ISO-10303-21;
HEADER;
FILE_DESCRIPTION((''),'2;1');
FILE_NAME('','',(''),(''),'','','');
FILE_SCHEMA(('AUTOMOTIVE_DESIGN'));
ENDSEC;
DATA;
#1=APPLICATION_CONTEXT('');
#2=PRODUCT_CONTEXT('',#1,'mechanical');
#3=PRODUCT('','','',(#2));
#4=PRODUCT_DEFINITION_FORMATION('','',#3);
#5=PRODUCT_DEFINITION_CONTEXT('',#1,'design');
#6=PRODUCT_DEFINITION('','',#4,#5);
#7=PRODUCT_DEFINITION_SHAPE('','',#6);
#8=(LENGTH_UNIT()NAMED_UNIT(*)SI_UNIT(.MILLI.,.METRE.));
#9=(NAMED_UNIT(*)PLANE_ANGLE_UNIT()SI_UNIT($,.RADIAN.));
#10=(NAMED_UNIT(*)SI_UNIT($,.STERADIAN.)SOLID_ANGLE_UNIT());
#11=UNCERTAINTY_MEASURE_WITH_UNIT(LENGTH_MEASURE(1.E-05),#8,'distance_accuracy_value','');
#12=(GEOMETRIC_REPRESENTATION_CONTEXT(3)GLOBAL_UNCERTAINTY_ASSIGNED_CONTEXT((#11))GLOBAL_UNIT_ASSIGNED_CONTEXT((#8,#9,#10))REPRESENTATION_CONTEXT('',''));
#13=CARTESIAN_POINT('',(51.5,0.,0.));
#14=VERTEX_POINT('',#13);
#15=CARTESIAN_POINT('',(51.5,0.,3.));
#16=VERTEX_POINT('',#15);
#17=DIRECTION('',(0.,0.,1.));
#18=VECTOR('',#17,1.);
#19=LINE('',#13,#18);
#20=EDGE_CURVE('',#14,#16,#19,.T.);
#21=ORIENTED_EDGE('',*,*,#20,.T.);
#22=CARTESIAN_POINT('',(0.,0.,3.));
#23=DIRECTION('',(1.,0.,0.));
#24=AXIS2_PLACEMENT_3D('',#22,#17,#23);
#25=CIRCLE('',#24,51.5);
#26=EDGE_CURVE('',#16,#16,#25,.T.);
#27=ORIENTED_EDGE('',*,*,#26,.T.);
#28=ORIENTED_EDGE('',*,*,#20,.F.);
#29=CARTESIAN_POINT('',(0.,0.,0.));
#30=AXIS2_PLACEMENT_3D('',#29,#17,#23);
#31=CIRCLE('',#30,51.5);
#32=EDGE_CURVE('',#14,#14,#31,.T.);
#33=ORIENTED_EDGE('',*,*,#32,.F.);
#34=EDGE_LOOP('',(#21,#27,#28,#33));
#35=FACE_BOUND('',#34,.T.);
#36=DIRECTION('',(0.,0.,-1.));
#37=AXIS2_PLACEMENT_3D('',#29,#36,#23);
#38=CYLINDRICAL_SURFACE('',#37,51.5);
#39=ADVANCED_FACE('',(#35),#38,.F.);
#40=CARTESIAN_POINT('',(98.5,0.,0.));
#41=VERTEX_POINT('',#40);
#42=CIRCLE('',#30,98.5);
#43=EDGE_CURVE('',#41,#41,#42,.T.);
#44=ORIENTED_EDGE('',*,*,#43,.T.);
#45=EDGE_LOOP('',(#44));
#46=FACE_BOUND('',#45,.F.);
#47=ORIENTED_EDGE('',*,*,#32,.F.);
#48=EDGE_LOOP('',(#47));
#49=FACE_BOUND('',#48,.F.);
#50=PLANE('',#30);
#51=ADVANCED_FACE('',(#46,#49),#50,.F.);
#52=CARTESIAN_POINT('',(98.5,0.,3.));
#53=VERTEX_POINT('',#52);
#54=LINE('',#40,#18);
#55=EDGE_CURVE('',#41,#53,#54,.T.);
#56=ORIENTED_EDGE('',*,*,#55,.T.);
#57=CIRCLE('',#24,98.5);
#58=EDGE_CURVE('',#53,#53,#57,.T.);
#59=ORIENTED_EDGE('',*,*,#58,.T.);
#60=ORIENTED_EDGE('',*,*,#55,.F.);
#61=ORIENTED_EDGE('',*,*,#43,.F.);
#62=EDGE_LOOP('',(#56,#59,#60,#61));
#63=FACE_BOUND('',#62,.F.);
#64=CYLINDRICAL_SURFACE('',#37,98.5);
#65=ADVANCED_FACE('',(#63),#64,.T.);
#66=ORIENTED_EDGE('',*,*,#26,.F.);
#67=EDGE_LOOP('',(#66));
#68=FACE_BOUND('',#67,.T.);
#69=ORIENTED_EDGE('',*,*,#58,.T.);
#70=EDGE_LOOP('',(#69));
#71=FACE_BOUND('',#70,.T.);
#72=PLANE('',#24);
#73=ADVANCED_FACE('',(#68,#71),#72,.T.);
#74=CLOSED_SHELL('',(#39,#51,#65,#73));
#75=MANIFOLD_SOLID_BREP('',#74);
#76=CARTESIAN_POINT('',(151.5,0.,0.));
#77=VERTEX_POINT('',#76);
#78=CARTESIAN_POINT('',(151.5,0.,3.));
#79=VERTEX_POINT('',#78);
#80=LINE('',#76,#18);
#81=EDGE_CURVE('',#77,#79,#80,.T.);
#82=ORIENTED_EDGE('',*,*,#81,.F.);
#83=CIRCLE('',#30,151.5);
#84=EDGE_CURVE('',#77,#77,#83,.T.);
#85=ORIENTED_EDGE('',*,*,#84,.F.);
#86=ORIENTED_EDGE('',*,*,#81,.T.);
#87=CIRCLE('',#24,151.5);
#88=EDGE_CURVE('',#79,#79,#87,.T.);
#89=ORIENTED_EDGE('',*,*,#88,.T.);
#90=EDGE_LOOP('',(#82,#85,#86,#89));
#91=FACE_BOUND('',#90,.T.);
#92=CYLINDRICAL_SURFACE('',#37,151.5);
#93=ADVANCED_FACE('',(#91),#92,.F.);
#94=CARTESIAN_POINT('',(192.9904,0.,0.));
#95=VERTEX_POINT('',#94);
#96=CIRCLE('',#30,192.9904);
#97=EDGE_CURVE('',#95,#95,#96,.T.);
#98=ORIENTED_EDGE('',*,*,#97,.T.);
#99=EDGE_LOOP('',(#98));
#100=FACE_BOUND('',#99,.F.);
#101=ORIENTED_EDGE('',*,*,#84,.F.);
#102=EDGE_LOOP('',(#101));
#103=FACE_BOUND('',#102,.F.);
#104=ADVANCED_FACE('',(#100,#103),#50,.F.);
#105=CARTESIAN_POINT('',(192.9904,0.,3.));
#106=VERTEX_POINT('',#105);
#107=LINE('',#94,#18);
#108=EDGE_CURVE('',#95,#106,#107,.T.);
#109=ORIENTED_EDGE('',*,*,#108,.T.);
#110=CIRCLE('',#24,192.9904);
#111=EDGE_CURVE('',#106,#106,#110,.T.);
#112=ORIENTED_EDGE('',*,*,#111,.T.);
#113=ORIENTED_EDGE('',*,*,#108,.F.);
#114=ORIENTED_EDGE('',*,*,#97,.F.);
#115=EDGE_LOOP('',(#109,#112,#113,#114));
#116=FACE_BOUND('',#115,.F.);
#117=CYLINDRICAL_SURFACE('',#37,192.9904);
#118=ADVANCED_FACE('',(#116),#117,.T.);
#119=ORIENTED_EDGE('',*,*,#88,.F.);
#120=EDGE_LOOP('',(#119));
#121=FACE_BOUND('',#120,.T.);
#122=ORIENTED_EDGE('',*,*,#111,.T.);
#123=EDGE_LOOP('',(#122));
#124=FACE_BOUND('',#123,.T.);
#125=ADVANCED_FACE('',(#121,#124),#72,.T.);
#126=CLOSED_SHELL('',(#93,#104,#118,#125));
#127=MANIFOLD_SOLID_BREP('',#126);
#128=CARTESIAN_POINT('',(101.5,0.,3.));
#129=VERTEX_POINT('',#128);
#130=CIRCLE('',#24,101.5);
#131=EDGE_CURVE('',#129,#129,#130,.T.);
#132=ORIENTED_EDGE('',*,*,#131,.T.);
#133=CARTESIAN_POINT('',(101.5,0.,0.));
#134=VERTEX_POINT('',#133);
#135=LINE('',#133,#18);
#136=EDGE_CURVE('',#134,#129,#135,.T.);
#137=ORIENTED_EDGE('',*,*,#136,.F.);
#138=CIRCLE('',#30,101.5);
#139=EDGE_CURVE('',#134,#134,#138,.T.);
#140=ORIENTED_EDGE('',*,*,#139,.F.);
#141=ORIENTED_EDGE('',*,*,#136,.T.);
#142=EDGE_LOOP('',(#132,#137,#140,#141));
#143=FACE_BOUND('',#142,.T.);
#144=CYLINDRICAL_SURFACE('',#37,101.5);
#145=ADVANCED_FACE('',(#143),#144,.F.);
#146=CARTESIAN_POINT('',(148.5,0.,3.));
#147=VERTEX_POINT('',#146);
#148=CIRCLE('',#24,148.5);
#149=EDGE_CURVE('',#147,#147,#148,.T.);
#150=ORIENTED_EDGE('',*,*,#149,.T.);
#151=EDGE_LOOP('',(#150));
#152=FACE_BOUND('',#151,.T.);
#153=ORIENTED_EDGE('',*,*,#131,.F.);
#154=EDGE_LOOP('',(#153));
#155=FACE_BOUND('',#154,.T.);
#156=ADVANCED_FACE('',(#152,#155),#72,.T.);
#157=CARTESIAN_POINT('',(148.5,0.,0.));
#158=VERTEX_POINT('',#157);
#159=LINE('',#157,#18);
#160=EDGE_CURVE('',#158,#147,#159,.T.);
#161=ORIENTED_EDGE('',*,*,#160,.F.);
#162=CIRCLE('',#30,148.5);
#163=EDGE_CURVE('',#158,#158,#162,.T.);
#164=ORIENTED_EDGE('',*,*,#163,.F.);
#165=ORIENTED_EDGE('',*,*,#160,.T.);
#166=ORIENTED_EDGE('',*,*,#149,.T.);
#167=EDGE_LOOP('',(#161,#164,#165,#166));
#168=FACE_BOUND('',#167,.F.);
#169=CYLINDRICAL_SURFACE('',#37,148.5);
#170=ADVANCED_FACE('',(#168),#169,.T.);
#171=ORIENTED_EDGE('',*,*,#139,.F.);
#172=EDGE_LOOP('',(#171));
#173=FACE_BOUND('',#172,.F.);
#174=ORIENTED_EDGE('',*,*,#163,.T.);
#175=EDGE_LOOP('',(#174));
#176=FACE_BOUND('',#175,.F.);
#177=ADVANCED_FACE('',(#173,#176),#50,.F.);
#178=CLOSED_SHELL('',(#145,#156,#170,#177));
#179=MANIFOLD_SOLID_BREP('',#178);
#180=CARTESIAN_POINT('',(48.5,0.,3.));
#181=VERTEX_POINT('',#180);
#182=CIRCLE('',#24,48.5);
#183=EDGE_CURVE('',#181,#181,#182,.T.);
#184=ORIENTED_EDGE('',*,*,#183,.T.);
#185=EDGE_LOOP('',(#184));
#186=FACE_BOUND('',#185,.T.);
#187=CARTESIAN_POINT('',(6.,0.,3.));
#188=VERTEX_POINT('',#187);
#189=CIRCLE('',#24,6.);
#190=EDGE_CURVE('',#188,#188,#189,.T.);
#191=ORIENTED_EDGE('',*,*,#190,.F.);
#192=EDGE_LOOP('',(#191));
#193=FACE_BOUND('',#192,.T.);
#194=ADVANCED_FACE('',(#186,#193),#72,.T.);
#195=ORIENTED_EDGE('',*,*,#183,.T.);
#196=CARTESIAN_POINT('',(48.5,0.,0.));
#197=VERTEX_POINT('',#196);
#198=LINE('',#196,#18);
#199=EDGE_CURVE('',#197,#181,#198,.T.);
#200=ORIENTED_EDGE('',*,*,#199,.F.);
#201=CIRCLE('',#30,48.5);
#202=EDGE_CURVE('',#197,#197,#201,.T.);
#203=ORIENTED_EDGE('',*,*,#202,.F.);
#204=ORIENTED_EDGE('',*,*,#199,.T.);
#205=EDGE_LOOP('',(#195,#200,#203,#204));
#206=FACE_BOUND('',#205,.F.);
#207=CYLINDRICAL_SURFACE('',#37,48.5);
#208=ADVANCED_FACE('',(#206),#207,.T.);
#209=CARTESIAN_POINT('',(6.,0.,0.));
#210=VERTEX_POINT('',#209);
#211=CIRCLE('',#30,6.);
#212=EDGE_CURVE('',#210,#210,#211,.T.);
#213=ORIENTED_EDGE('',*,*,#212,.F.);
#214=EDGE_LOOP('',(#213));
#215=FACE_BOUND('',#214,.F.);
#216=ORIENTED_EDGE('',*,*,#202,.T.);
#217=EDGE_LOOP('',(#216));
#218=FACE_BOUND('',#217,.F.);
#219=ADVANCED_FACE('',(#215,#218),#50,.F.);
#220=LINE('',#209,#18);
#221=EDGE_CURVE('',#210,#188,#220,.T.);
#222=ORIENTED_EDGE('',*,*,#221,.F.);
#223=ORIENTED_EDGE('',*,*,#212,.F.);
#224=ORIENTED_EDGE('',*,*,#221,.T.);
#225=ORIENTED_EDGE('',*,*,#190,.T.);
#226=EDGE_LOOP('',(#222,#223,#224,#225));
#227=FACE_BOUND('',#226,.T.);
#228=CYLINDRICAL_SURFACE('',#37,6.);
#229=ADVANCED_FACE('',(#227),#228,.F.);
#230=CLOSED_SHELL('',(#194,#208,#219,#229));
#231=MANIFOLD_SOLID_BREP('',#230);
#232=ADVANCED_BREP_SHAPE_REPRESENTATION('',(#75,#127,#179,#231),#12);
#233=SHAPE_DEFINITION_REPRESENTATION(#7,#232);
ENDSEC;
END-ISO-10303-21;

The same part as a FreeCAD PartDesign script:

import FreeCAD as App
import Part
import Sketcher

V = App.Vector
Q = App.Units.Quantity

doc = App.newDocument("Part")
body = doc.addObject("PartDesign::Body", "Body")
body.AllowCompound = True

# Sketch on XY plane
sketch1 = body.newObject("Sketcher::SketchObject", "Sketch")
sketch1.AttachmentSupport = (doc.getObject("XY_Plane"), [""])
sketch1.MapMode = "FlatFace"
sketch1.addGeometry([
    Part.Circle(V(0, 0, 0), V(0, 0, 1), 48.5),  # 0
    Part.Circle(V(0, 0, 0), V(0, 0, 1), 6),  # 1
    Part.Circle(V(0, 0, 0), V(0, 0, 1), 98.5),  # 2
    Part.Circle(V(0, 0, 0), V(0, 0, 1), 51.5),  # 3
    Part.Circle(V(0, 0, 0), V(0, 0, 1), 148.5),  # 4
    Part.Circle(V(0, 0, 0), V(0, 0, 1), 101.5),  # 5
    Part.Circle(V(0, 0, 0), V(0, 0, 1), 192.9904),  # 6
    Part.Circle(V(0, 0, 0), V(0, 0, 1), 151.5),  # 7
], False)
sketch1.addConstraint([
    Sketcher.Constraint("Coincident", 0, 3, -1, 1),
    Sketcher.Constraint("Coincident", 1, 3, -1, 1),
    Sketcher.Constraint("Coincident", 2, 3, -1, 1),
    Sketcher.Constraint("Coincident", 3, 3, -1, 1),
    Sketcher.Constraint("Coincident", 4, 3, -1, 1),
    Sketcher.Constraint("Coincident", 5, 3, -1, 1),
    Sketcher.Constraint("Coincident", 6, 3, -1, 1),
    Sketcher.Constraint("Coincident", 7, 3, -1, 1),
    Sketcher.Constraint("Diameter", 0, Q("97 mm")),
    Sketcher.Constraint("Diameter", 1, Q("12 mm")),
    Sketcher.Constraint("Diameter", 2, Q("197 mm")),
    Sketcher.Constraint("Diameter", 3, Q("103 mm")),
    Sketcher.Constraint("Diameter", 4, Q("297 mm")),
    Sketcher.Constraint("Diameter", 5, Q("203 mm")),
    Sketcher.Constraint("Diameter", 7, Q("303 mm")),
    Sketcher.Constraint("Diameter", 6, Q("385.9808 mm")),
])
pad1 = body.newObject("PartDesign::Pad", "Pad")
pad1.Profile = sketch1
pad1.Length = 3

doc.recompute()
